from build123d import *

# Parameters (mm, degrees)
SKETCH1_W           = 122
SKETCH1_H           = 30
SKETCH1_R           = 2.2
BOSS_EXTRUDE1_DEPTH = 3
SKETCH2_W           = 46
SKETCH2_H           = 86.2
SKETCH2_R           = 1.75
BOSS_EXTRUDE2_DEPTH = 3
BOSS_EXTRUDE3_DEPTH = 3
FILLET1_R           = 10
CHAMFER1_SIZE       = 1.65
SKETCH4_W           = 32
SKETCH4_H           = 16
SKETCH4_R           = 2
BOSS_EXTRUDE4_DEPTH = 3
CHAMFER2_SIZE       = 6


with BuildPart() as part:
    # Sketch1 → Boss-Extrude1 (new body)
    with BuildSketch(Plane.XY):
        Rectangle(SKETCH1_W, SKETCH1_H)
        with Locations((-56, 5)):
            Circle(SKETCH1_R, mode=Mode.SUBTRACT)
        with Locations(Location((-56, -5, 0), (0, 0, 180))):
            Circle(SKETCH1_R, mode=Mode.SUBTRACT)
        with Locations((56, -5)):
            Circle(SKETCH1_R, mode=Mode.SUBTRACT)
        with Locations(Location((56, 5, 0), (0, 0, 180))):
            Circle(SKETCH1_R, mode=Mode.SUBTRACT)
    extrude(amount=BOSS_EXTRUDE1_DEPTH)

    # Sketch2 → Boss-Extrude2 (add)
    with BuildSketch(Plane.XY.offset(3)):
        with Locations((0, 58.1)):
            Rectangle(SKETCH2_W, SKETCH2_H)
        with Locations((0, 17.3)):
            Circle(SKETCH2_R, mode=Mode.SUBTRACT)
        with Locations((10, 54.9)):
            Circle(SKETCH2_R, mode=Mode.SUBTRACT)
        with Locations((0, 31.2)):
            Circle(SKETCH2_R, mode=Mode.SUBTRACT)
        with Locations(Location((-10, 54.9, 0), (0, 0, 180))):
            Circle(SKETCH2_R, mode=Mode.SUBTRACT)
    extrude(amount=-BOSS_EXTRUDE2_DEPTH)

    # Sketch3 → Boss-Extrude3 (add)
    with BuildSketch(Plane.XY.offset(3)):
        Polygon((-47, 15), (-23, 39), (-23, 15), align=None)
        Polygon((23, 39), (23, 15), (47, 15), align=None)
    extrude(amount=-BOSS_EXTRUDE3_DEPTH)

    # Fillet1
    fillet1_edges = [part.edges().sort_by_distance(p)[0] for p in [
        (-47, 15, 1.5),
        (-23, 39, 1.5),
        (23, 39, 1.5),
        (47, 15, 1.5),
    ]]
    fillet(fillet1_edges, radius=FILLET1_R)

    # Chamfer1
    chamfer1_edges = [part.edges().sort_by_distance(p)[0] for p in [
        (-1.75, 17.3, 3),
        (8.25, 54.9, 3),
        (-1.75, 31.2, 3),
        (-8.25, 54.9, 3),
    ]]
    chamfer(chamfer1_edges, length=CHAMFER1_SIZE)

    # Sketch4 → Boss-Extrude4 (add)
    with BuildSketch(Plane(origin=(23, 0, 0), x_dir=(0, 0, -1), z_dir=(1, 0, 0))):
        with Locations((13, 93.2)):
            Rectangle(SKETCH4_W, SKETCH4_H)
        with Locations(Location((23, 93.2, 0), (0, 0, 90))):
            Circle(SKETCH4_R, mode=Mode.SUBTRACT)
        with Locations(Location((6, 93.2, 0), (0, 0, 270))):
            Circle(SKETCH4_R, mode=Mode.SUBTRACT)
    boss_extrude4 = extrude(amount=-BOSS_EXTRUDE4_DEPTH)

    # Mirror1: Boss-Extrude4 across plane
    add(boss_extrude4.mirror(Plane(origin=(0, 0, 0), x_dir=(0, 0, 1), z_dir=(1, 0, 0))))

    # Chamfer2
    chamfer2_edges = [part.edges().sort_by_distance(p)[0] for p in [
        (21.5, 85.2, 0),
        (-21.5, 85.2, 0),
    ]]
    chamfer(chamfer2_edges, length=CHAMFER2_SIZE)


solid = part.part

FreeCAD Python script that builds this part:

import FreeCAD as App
import Part
import Sketcher
from FreeCAD import Vector
Q = App.Units.Quantity


def edges_at(feature, points):
    """Names of the edges that pass closest to the given points."""
    edges = feature.Shape.Edges
    near = lambda p: min(range(len(edges)), key=lambda i: edges[i].distToShape(Part.Vertex(*p))[0])
    return sorted({f"Edge{near(p) + 1}" for p in points})


def add_polygon(sketch, points):
    """Adds a closed chain of lines whose ends are joined by coincident constraints."""
    first, n = sketch.GeometryCount, len(points)
    for a, b in zip(points, points[1:] + points[:1]):
        sketch.addGeometry(Part.LineSegment(App.Vector(*a, 0), App.Vector(*b, 0)), False)
    for i in range(n):
        sketch.addConstraint(Sketcher.Constraint("Coincident", first + i, 2, first + (i + 1) % n, 1))

doc = App.newDocument("Part")
params = doc.addObject("Spreadsheet::Sheet", "Params")
for row, (alias, value) in enumerate([
    ("sketch1_diameter", "4.4 mm"),
    ("sketch1_width", "122 mm"),
    ("sketch1_height", "30 mm"),
    ("pad1_length", "3 mm"),
    ("sketch2_diameter", "3.5 mm"),
    ("sketch2_width", "46 mm"),
    ("sketch2_height", "86.2 mm"),
    ("pad2_length", "3 mm"),
    ("sketch3_width", "24 mm"),
    ("pad3_length", "3 mm"),
    ("fillet_radius", "10 mm"),
    ("chamfer_size", "1.65 mm"),
    ("sketch4_diameter", "4 mm"),
    ("sketch4_width", "16 mm"),
    ("sketch4_height", "32 mm"),
    ("pad4_length", "3 mm"),
    ("chamfer2_size", "6 mm"),
], start=1):
    params.set(f"A{row}", alias)
    params.set(f"B{row}", "=" + value)
    params.setAlias(f"B{row}", alias)

body = doc.addObject("PartDesign::Body", "Body")

# Sketch on XY plane
sketch1 = doc.addObject("Sketcher::SketchObject", "Sketch")
body.addObject(sketch1)
sketch1.AttachmentSupport = (doc.XY_Plane, [""])
sketch1.MapMode = "FlatFace"
add_polygon(sketch1, [(-61, 15), (-61, -15), (61, -15), (61, 15)])  # lines 0-3
sketch1.addGeometry(Part.Circle(Vector(-56, -5, 0), Vector(0, 0, 1), 2.2), False)  # 4
sketch1.addGeometry(Part.Circle(Vector(56, -5, 0), Vector(0, 0, 1), 2.2), False)  # 5
sketch1.addGeometry(Part.Circle(Vector(-56, 5, 0), Vector(0, 0, 1), 2.2), False)  # 6
sketch1.addGeometry(Part.Circle(Vector(56, 5, 0), Vector(0, 0, 1), 2.2), False)  # 7
sketch1.addConstraint([
    Sketcher.Constraint("Vertical", 0),
    Sketcher.Constraint("Horizontal", 1),
    Sketcher.Constraint("Vertical", 2),
    Sketcher.Constraint("Horizontal", 3),
    Sketcher.Constraint("Equal", 4, 5),
    Sketcher.Constraint("Equal", 5, 6),
    Sketcher.Constraint("Equal", 6, 7),
    Sketcher.Constraint("Symmetric", 5, 3, 6, 3, -1, 1),
    Sketcher.Constraint("Symmetric", 4, 3, 7, 3, -1, 1),
    Sketcher.Constraint("Symmetric", 0, 2, 2, 2, -1, 1),
    Sketcher.Constraint("Symmetric", 4, 3, 5, 3, -2),
    Sketcher.Constraint("Diameter", 4, Q("4.4 mm")),
    Sketcher.Constraint("DistanceX", 1, 1, 1, 2, Q("122 mm")),
    Sketcher.Constraint("DistanceY", 0, 2, 0, 1, Q("30 mm")),
    Sketcher.Constraint("DistanceX", 4, 3, -1, 1, Q("56 mm")),
    Sketcher.Constraint("DistanceY", 4, 3, -1, 1, Q("5 mm")),
])
sketch1.setExpression("Constraints[15]", "Params.sketch1_diameter")
sketch1.setExpression("Constraints[16]", "Params.sketch1_width")
sketch1.setExpression("Constraints[17]", "Params.sketch1_height")
pad1 = doc.addObject("PartDesign::Pad", "Pad")
body.addObject(pad1)
pad1.Profile = sketch1
pad1.setExpression("Length", "Params.pad1_length")

# Sketch on XY plane
sketch2 = doc.addObject("Sketcher::SketchObject", "Sketch001")
body.addObject(sketch2)
sketch2.AttachmentSupport = (doc.XY_Plane, [""])
sketch2.MapMode = "FlatFace"
sketch2.AttachmentOffset = App.Placement(Vector(0, 0, 3), App.Rotation())
add_polygon(sketch2, [(-23, 101.2), (-23, 15), (23, 15), (23, 101.2)])  # lines 0-3
sketch2.addGeometry(Part.Circle(Vector(0, 17.3, 0), Vector(0, 0, 1), 1.8), False)  # 4
sketch2.addGeometry(Part.Circle(Vector(0, 31.2, 0), Vector(0, 0, 1), 1.8), False)  # 5
sketch2.addGeometry(Part.Circle(Vector(-10, 54.9, 0), Vector(0, 0, 1), 1.8), False)  # 6
sketch2.addGeometry(Part.Circle(Vector(10, 54.9, 0), Vector(0, 0, 1), 1.8), False)  # 7
sketch2.addConstraint([
    Sketcher.Constraint("Vertical", 0),
    Sketcher.Constraint("Horizontal", 1),
    Sketcher.Constraint("Vertical", 2),
    Sketcher.Constraint("Horizontal", 3),
    Sketcher.Constraint("Equal", 4, 5),
    Sketcher.Constraint("Equal", 5, 6),
    Sketcher.Constraint("Equal", 6, 7),
    Sketcher.Constraint("Symmetric", 6, 3, 7, 3, -2),
    Sketcher.Constraint("PointOnObject", 4, 3, -2),
    Sketcher.Constraint("PointOnObject", 5, 3, -2),
    Sketcher.Constraint("Diameter", 4, Q("3.5 mm")),
    Sketcher.Constraint("DistanceX", 1, 1, 1, 2, Q("46 mm")),
    Sketcher.Constraint("DistanceY", 0, 2, 0, 1, Q("86.2 mm")),
    Sketcher.Constraint("DistanceX", 6, 3, -1, 1, Q("10 mm")),
    Sketcher.Constraint("DistanceX", 0, 2, -1, 1, Q("23 mm")),
    Sketcher.Constraint("DistanceY", -1, 1, 0, 2, Q("15 mm")),
    Sketcher.Constraint("DistanceY", 5, 3, 2, 2, Q("70 mm")),
    Sketcher.Constraint("DistanceY", -1, 1, 4, 3, Q("17.3 mm")),
    Sketcher.Constraint("DistanceY", -1, 1, 6, 3, Q("54.9 mm")),
])
sketch2.setExpression("Constraints[14]", "Params.sketch2_diameter")
sketch2.setExpression("Constraints[15]", "Params.sketch2_width")
sketch2.setExpression("Constraints[16]", "Params.sketch2_height")
pad2 = doc.addObject("PartDesign::Pad", "Pad001")
body.addObject(pad2)
pad2.Profile = sketch2
pad2.setExpression("Length", "Params.pad2_length")
pad2.Reversed = True

# Sketch on XY plane
sketch3 = doc.addObject("Sketcher::SketchObject", "Sketch002")
body.addObject(sketch3)
sketch3.AttachmentSupport = (doc.XY_Plane, [""])
sketch3.MapMode = "FlatFace"
sketch3.AttachmentOffset = App.Placement(Vector(0, 0, 3), App.Rotation())
add_polygon(sketch3, [(-23, 39), (-47, 15), (-23, 15)])  # lines 0-2
add_polygon(sketch3, [(23, 39), (23, 15), (47, 15)])  # lines 3-5
sketch3.addConstraint([
    Sketcher.Constraint("Horizontal", 1),
    Sketcher.Constraint("Vertical", 2),
    Sketcher.Constraint("Vertical", 3),
    Sketcher.Constraint("Horizontal", 4),
    Sketcher.Constraint("Symmetric", 1, 2, 3, 2, -2),
    Sketcher.Constraint("Perpendicular", 0, 5),
    Sketcher.Constraint("Horizontal", 2, 2, 5, 2),
    Sketcher.Constraint("Equal", 1, 4),
    Sketcher.Constraint("DistanceX", 1, 1, 1, 2, Q("24 mm")),
    Sketcher.Constraint("DistanceX", 0, 2, -1, 1, Q("47 mm")),
    Sketcher.Constraint("DistanceY", -1, 1, 0, 2, Q("15 mm")),
])
sketch3.setExpression("Constraints[14]", "Params.sketch3_width")
pad3 = doc.addObject("PartDesign::Pad", "Pad002")
body.addObject(pad3)
pad3.Profile = sketch3
pad3.setExpression("Length", "Params.pad3_length")
pad3.Reversed = True
doc.recompute()

fillet = doc.addObject("PartDesign::Fillet", "Fillet")
body.addObject(fillet)
fillet.Base = (pad3, edges_at(pad3, [
    (-47, 15, 1.5),
    (-23, 39, 1.5),
    (23, 39, 1.5),
    (47, 15, 1.5),
]))
fillet.setExpression("Radius", "Params.fillet_radius")
doc.recompute()

chamfer = doc.addObject("PartDesign::Chamfer", "Chamfer")
body.addObject(chamfer)
chamfer.Base = (fillet, edges_at(fillet, [
    (-1.75, 17.3, 3),
    (8.25, 54.9, 3),
    (-1.75, 31.2, 3),
    (-8.25, 54.9, 3),
]))
chamfer.setExpression("Size", "Params.chamfer_size")

# Sketch on YZ plane
sketch4 = doc.addObject("Sketcher::SketchObject", "Sketch003")
body.addObject(sketch4)
sketch4.AttachmentSupport = (doc.YZ_Plane, [""])
sketch4.MapMode = "FlatFace"
sketch4.AttachmentOffset = App.Placement(Vector(0, 0, 23), App.Rotation())
add_polygon(sketch4, [(101.2, 3), (85.2, 3), (85.2, -29), (101.2, -29)])  # lines 0-3
sketch4.addGeometry(Part.Circle(Vector(93.2, -6, 0), Vector(0, 0, 1), 2), False)  # 4
sketch4.addGeometry(Part.Circle(Vector(93.2, -23, 0), Vector(0, 0, 1), 2), False)  # 5
sketch4.addConstraint([
    Sketcher.Constraint("Horizontal", 0),
    Sketcher.Constraint("Vertical", 1),
    Sketcher.Constraint("Horizontal", 2),
    Sketcher.Constraint("Vertical", 3),
    Sketcher.Constraint("Equal", 4, 5),
    Sketcher.Constraint("Vertical", 4, 3, 5, 3),
    Sketcher.Constraint("Diameter", 4, Q("4 mm")),
    Sketcher.Constraint("DistanceX", 0, 2, 0, 1, Q("16 mm")),
    Sketcher.Constraint("DistanceY", 1, 2, 1, 1, Q("32 mm")),
    Sketcher.Constraint("DistanceY", 4, 3, -1, 1, Q("6 mm")),
    Sketcher.Constraint("DistanceY", 5, 3, -1, 1, Q("23 mm")),
    Sketcher.Constraint("DistanceY", -1, 1, 0, 2, Q("3 mm")),
    Sketcher.Constraint("DistanceX", 0, 2, 4, 3, Q("8 mm")),
    Sketcher.Constraint("DistanceX", -1, 1, 4, 3, Q("93.2 mm")),
])
sketch4.setExpression("Constraints[10]", "Params.sketch4_diameter")
sketch4.setExpression("Constraints[11]", "Params.sketch4_width")
sketch4.setExpression("Constraints[12]", "Params.sketch4_height")
pad4 = doc.addObject("PartDesign::Pad", "Pad003")
body.addObject(pad4)
pad4.Profile = sketch4
pad4.setExpression("Length", "Params.pad4_length")
pad4.Reversed = True
doc.recompute()

mirrored = doc.addObject("PartDesign::Mirrored", "Mirrored")
body.addObject(mirrored)
mirrored.Originals = [pad4]
mirrored.MirrorPlane = (doc.YZ_Plane, [""])
body.Tip = mirrored
doc.recompute()

chamfer2 = doc.addObject("PartDesign::Chamfer", "Chamfer001")
body.addObject(chamfer2)
chamfer2.Base = (mirrored, edges_at(mirrored, [(21.5, 85.2, 0), (-21.5, 85.2, 0)]))
chamfer2.setExpression("Size", "Params.chamfer2_size")

doc.recompute()
